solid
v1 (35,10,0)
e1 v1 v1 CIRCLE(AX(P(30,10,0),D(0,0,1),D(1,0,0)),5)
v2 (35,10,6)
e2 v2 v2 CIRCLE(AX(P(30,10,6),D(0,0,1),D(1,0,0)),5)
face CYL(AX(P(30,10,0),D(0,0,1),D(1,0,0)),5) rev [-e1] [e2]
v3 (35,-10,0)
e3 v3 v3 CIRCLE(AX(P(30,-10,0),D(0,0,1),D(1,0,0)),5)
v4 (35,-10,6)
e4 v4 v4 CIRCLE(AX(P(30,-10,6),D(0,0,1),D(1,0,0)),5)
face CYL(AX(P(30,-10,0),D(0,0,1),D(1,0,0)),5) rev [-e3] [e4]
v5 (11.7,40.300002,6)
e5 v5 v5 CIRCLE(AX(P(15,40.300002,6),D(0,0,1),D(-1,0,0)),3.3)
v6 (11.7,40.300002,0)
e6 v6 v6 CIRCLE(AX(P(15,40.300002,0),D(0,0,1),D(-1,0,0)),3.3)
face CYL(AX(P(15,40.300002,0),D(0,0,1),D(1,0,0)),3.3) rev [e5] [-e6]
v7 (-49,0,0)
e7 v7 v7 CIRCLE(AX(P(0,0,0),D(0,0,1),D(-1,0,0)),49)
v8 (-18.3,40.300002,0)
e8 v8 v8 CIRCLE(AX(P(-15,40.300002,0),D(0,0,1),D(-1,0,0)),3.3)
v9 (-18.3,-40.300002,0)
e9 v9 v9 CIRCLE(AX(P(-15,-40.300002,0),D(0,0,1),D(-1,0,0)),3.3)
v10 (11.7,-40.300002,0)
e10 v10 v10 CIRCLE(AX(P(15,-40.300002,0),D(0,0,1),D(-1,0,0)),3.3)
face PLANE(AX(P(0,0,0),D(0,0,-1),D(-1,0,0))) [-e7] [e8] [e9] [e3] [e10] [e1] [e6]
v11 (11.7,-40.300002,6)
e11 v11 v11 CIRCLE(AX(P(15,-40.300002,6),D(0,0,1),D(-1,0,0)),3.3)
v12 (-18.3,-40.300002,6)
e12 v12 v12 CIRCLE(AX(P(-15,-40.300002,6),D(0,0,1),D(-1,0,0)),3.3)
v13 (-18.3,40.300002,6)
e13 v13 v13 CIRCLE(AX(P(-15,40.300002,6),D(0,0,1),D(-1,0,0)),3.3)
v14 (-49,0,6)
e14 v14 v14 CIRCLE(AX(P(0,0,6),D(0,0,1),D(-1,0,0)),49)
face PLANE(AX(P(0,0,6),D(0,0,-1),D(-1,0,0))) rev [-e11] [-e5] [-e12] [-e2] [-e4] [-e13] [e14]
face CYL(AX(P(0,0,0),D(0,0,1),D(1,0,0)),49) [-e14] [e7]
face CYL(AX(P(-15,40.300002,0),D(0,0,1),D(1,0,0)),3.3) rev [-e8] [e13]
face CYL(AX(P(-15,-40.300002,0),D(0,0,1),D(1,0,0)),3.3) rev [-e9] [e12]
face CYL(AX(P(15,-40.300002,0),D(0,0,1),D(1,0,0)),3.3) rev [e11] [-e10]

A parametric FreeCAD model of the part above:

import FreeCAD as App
import Part
import Sketcher

doc = App.newDocument("Part")
body = doc.addObject("PartDesign::Body", "Body")

sketch1 = doc.addObject("Sketcher::SketchObject", "Sketch")
body.addObject(sketch1)
sketch1.AttachmentSupport = (doc.XY_Plane, [""])
sketch1.MapMode = "FlatFace"
sketch1.AttachmentOffset = App.Placement(App.Vector(0, 0, 6), App.Rotation())
sketch1.addGeometry(Part.Circle(App.Vector(0, 0, 0), App.Vector(0, 0, 1), 49), False)
sketch1.addGeometry(Part.Circle(App.Vector(15, 40.300002, 0), App.Vector(0, 0, 1), 3.3), False)
sketch1.addGeometry(Part.Circle(App.Vector(-15, 40.300002, 0), App.Vector(0, 0, 1), 3.3), False)
sketch1.addGeometry(Part.Circle(App.Vector(15, -40.300002, 0), App.Vector(0, 0, 1), 3.3), False)
sketch1.addGeometry(Part.Circle(App.Vector(-15, -40.300002, 0), App.Vector(0, 0, 1), 3.3), False)
sketch1.addConstraint(Sketcher.Constraint("Coincident", 0, 3, -1, 1))
sketch1.addConstraint(Sketcher.Constraint("Equal", 1, 2))
sketch1.addConstraint(Sketcher.Constraint("Equal", 2, 3))
sketch1.addConstraint(Sketcher.Constraint("Equal", 3, 4))
sketch1.addConstraint(Sketcher.Constraint("Symmetric", 2, 3, 3, 3, -1, 1))
sketch1.addConstraint(Sketcher.Constraint("Symmetric", 1, 3, 4, 3, -1, 1))
sketch1.addConstraint(Sketcher.Constraint("Symmetric", 1, 3, 2, 3, -2))
sketch1.addConstraint(Sketcher.Constraint("Diameter", 0, 98.0))
sketch1.addConstraint(Sketcher.Constraint("Diameter", 1, 6.6))
sketch1.addConstraint(Sketcher.Constraint("DistanceX", -1, 1, 1, 3, 15.0))
sketch1.addConstraint(Sketcher.Constraint("DistanceY", -1, 1, 1, 3, 40.300002))
pad1 = doc.addObject("PartDesign::Pad", "Pad")
body.addObject(pad1)
pad1.Profile = sketch1
pad1.Length = 6
pad1.Reversed = True

sketch2 = doc.addObject("Sketcher::SketchObject", "Sketch001")
body.addObject(sketch2)
sketch2.AttachmentSupport = (doc.XY_Plane, [""])
sketch2.MapMode = "FlatFace"
sketch2.AttachmentOffset = App.Placement(App.Vector(0, 0, 6), App.Rotation())
sketch2.addGeometry(Part.Circle(App.Vector(30, 10, 0), App.Vector(0, 0, 1), 5), False)
sketch2.addGeometry(Part.Circle(App.Vector(30, -10, 0), App.Vector(0, 0, 1), 5), False)
sketch2.addConstraint(Sketcher.Constraint("Equal", 0, 1))
sketch2.addConstraint(Sketcher.Constraint("Symmetric", 0, 3, 1, 3, -1))
sketch2.addConstraint(Sketcher.Constraint("Diameter", 0, 10.0))
sketch2.addConstraint(Sketcher.Constraint("DistanceX", -1, 1, 0, 3, 30.0))
sketch2.addConstraint(Sketcher.Constraint("DistanceY", -1, 1, 0, 3, 10.0))
pocket1 = doc.addObject("PartDesign::Pocket", "Pocket")
body.addObject(pocket1)
pocket1.Profile = sketch2
pocket1.Type = "ThroughAll"

doc.recompute()
